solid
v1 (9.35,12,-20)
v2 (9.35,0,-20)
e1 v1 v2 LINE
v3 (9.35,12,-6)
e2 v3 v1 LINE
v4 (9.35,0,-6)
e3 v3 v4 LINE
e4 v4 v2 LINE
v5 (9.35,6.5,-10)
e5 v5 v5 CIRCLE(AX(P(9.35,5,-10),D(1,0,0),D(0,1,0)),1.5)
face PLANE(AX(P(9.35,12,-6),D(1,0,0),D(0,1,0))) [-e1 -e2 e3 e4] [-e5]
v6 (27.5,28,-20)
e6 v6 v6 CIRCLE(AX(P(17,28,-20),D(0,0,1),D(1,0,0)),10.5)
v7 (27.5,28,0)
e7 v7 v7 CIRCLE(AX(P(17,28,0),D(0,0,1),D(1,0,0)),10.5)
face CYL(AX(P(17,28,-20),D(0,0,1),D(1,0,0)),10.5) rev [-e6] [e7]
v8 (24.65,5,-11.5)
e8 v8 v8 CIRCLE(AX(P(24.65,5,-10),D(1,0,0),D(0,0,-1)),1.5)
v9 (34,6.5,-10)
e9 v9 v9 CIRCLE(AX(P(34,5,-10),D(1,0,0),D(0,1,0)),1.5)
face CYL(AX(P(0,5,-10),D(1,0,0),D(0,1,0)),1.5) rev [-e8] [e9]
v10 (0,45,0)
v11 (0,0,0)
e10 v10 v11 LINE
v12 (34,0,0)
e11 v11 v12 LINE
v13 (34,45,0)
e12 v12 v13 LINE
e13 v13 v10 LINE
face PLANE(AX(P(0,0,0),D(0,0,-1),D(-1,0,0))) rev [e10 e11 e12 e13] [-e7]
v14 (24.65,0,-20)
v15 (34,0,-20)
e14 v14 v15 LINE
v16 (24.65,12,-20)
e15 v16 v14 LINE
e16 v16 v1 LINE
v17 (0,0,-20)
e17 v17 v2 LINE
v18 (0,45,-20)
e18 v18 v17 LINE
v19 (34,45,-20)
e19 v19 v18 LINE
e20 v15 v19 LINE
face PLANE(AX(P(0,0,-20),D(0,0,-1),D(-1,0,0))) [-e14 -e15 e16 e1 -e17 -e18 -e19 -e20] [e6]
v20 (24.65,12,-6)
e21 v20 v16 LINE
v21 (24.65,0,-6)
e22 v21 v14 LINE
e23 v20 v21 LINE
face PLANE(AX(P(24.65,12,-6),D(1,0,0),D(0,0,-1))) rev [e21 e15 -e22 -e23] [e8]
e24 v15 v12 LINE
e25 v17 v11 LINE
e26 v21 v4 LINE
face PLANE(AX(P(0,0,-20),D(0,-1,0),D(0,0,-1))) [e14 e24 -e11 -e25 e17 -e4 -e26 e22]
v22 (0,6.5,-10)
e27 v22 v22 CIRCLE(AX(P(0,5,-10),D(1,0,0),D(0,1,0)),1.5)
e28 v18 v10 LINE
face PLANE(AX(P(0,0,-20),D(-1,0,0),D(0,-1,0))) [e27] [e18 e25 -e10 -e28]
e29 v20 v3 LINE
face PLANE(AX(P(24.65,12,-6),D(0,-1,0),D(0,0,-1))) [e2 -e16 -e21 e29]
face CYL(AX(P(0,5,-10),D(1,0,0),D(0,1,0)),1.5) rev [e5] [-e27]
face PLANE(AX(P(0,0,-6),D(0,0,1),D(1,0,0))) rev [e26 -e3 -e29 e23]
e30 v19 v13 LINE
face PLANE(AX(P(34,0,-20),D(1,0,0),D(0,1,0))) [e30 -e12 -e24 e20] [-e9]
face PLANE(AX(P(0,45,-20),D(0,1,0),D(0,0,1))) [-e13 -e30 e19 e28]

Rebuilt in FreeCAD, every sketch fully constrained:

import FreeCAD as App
import Part
import Sketcher

V = App.Vector

doc = App.newDocument("Part")
params = doc.addObject("Spreadsheet::Sheet", "Params")
for row, (alias, value) in enumerate([
    ("sketch1_width", "34 mm"),
    ("sketch1_height", "45 mm"),
    ("pad1_length", "20 mm"),
    ("sketch2_diameter", "21 mm"),
    ("sketch3_height", "12 mm"),
    ("sketch3_width", "15.3 mm"),
    ("pocket2_length", "14 mm"),
    ("sketch4_diameter", "3 mm"),
], start=1):
    params.set(f"A{row}", alias)
    params.set(f"B{row}", "=" + value)
    params.setAlias(f"B{row}", alias)

body = doc.addObject("PartDesign::Body", "Body")

# Sketch on XY plane
sketch1 = doc.addObject("Sketcher::SketchObject", "Sketch")
body.addObject(sketch1)
sketch1.AttachmentSupport = (doc.XY_Plane, [""])
sketch1.MapMode = "FlatFace"
sketch1.addGeometry(Part.LineSegment(V(0, 45, 0), V(0, 0, 0)), False)
sketch1.addGeometry(Part.LineSegment(V(0, 0, 0), V(34, 0, 0)), False)
sketch1.addGeometry(Part.LineSegment(V(34, 0, 0), V(34, 45, 0)), False)
sketch1.addGeometry(Part.LineSegment(V(34, 45, 0), V(0, 45, 0)), False)
sketch1.addConstraint(Sketcher.Constraint("Coincident", 0, 2, 1, 1))
sketch1.addConstraint(Sketcher.Constraint("Coincident", 1, 2, 2, 1))
sketch1.addConstraint(Sketcher.Constraint("Coincident", 2, 2, 3, 1))
sketch1.addConstraint(Sketcher.Constraint("Coincident", 3, 2, 0, 1))
sketch1.addConstraint(Sketcher.Constraint("Vertical", 0))
sketch1.addConstraint(Sketcher.Constraint("Horizontal", 1))
sketch1.addConstraint(Sketcher.Constraint("Vertical", 2))
sketch1.addConstraint(Sketcher.Constraint("Horizontal", 3))
sketch1.addConstraint(Sketcher.Constraint("Coincident", 0, 2, -1, 1))
sketch1.addConstraint(Sketcher.Constraint("DistanceX", 1, 1, 1, 2, 34.0))
sketch1.addConstraint(Sketcher.Constraint("DistanceY", 0, 2, 0, 1, 45.0))
sketch1.setExpression("Constraints[9]", "Params.sketch1_width")
sketch1.setExpression("Constraints[10]", "Params.sketch1_height")
pad1 = doc.addObject("PartDesign::Pad", "Pad")
body.addObject(pad1)
pad1.Profile = sketch1
pad1.setExpression("Length", "Params.pad1_length")
pad1.Reversed = True

# Sketch on XY plane
sketch2 = doc.addObject("Sketcher::SketchObject", "Sketch001")
body.addObject(sketch2)
sketch2.AttachmentSupport = (doc.XY_Plane, [""])
sketch2.MapMode = "FlatFace"
sketch2.addGeometry(Part.Circle(V(17, 28, 0), V(0, 0, 1), 10), False)
sketch2.addConstraint(Sketcher.Constraint("Diameter", 0, 21.0))
sketch2.addConstraint(Sketcher.Constraint("DistanceX", -1, 1, 0, 3, 17.0))
sketch2.addConstraint(Sketcher.Constraint("DistanceY", -1, 1, 0, 3, 28.0))
sketch2.setExpression("Constraints[0]", "Params.sketch2_diameter")
pocket1 = doc.addObject("PartDesign::Pocket", "Pocket")
body.addObject(pocket1)
pocket1.Profile = sketch2
pocket1.Type = "ThroughAll"

# Sketch on XY plane
sketch3 = doc.addObject("Sketcher::SketchObject", "Sketch002")
body.addObject(sketch3)
sketch3.AttachmentSupport = (doc.XY_Plane, [""])
sketch3.MapMode = "FlatFace"
sketch3.AttachmentOffset = App.Placement(V(0, 0, -20), App.Rotation())
sketch3.addGeometry(Part.LineSegment(V(25, 12, 0), V(25, 0, 0)), False)
sketch3.addGeometry(Part.LineSegment(V(25, 0, 0), V(9, 0, 0)), False)
sketch3.addGeometry(Part.LineSegment(V(9, 0, 0), V(9, 12, 0)), False)
sketch3.addGeometry(Part.LineSegment(V(9, 12, 0), V(25, 12, 0)), False)
sketch3.addConstraint(Sketcher.Constraint("Coincident", 0, 2, 1, 1))
sketch3.addConstraint(Sketcher.Constraint("Coincident", 1, 2, 2, 1))
sketch3.addConstraint(Sketcher.Constraint("Coincident", 2, 2, 3, 1))
sketch3.addConstraint(Sketcher.Constraint("Coincident", 3, 2, 0, 1))
sketch3.addConstraint(Sketcher.Constraint("Vertical", 0))
sketch3.addConstraint(Sketcher.Constraint("Horizontal", 1))
sketch3.addConstraint(Sketcher.Constraint("Vertical", 2))
sketch3.addConstraint(Sketcher.Constraint("Horizontal", 3))
sketch3.addConstraint(Sketcher.Constraint("PointOnObject", 0, 2, -1))
sketch3.addConstraint(Sketcher.Constraint("DistanceY", 0, 2, 0, 1, 12.0))
sketch3.addConstraint(Sketcher.Constraint("DistanceX", 1, 2, 1, 1, 15.3))
sketch3.addConstraint(Sketcher.Constraint("DistanceX", -1, 1, 0, 2, 24.65))
sketch3.setExpression("Constraints[9]", "Params.sketch3_height")
sketch3.setExpression("Constraints[10]", "Params.sketch3_width")
pocket2 = doc.addObject("PartDesign::Pocket", "Pocket001")
body.addObject(pocket2)
pocket2.Profile = sketch3
pocket2.setExpression("Length", "Params.pocket2_length")
pocket2.Reversed = True

# Sketch on YZ plane
sketch4 = doc.addObject("Sketcher::SketchObject", "Sketch003")
body.addObject(sketch4)
sketch4.AttachmentSupport = (doc.YZ_Plane, [""])
sketch4.MapMode = "FlatFace"
sketch4.AttachmentOffset = App.Placement(V(0, 0, 34), App.Rotation())
sketch4.addGeometry(Part.Circle(V(5, -10, 0), V(0, 0, 1), 1.5), False)
sketch4.addConstraint(Sketcher.Constraint("Diameter", 0, 3.0))
sketch4.addConstraint(Sketcher.Constraint("DistanceX", -1, 1, 0, 3, 5.0))
sketch4.addConstraint(Sketcher.Constraint("DistanceY", 0, 3, -1, 1, 10.0))
sketch4.setExpression("Constraints[0]", "Params.sketch4_diameter")
pocket3 = doc.addObject("PartDesign::Pocket", "Pocket002")
body.addObject(pocket3)
pocket3.Profile = sketch4
pocket3.Type = "ThroughAll"

doc.recompute()
